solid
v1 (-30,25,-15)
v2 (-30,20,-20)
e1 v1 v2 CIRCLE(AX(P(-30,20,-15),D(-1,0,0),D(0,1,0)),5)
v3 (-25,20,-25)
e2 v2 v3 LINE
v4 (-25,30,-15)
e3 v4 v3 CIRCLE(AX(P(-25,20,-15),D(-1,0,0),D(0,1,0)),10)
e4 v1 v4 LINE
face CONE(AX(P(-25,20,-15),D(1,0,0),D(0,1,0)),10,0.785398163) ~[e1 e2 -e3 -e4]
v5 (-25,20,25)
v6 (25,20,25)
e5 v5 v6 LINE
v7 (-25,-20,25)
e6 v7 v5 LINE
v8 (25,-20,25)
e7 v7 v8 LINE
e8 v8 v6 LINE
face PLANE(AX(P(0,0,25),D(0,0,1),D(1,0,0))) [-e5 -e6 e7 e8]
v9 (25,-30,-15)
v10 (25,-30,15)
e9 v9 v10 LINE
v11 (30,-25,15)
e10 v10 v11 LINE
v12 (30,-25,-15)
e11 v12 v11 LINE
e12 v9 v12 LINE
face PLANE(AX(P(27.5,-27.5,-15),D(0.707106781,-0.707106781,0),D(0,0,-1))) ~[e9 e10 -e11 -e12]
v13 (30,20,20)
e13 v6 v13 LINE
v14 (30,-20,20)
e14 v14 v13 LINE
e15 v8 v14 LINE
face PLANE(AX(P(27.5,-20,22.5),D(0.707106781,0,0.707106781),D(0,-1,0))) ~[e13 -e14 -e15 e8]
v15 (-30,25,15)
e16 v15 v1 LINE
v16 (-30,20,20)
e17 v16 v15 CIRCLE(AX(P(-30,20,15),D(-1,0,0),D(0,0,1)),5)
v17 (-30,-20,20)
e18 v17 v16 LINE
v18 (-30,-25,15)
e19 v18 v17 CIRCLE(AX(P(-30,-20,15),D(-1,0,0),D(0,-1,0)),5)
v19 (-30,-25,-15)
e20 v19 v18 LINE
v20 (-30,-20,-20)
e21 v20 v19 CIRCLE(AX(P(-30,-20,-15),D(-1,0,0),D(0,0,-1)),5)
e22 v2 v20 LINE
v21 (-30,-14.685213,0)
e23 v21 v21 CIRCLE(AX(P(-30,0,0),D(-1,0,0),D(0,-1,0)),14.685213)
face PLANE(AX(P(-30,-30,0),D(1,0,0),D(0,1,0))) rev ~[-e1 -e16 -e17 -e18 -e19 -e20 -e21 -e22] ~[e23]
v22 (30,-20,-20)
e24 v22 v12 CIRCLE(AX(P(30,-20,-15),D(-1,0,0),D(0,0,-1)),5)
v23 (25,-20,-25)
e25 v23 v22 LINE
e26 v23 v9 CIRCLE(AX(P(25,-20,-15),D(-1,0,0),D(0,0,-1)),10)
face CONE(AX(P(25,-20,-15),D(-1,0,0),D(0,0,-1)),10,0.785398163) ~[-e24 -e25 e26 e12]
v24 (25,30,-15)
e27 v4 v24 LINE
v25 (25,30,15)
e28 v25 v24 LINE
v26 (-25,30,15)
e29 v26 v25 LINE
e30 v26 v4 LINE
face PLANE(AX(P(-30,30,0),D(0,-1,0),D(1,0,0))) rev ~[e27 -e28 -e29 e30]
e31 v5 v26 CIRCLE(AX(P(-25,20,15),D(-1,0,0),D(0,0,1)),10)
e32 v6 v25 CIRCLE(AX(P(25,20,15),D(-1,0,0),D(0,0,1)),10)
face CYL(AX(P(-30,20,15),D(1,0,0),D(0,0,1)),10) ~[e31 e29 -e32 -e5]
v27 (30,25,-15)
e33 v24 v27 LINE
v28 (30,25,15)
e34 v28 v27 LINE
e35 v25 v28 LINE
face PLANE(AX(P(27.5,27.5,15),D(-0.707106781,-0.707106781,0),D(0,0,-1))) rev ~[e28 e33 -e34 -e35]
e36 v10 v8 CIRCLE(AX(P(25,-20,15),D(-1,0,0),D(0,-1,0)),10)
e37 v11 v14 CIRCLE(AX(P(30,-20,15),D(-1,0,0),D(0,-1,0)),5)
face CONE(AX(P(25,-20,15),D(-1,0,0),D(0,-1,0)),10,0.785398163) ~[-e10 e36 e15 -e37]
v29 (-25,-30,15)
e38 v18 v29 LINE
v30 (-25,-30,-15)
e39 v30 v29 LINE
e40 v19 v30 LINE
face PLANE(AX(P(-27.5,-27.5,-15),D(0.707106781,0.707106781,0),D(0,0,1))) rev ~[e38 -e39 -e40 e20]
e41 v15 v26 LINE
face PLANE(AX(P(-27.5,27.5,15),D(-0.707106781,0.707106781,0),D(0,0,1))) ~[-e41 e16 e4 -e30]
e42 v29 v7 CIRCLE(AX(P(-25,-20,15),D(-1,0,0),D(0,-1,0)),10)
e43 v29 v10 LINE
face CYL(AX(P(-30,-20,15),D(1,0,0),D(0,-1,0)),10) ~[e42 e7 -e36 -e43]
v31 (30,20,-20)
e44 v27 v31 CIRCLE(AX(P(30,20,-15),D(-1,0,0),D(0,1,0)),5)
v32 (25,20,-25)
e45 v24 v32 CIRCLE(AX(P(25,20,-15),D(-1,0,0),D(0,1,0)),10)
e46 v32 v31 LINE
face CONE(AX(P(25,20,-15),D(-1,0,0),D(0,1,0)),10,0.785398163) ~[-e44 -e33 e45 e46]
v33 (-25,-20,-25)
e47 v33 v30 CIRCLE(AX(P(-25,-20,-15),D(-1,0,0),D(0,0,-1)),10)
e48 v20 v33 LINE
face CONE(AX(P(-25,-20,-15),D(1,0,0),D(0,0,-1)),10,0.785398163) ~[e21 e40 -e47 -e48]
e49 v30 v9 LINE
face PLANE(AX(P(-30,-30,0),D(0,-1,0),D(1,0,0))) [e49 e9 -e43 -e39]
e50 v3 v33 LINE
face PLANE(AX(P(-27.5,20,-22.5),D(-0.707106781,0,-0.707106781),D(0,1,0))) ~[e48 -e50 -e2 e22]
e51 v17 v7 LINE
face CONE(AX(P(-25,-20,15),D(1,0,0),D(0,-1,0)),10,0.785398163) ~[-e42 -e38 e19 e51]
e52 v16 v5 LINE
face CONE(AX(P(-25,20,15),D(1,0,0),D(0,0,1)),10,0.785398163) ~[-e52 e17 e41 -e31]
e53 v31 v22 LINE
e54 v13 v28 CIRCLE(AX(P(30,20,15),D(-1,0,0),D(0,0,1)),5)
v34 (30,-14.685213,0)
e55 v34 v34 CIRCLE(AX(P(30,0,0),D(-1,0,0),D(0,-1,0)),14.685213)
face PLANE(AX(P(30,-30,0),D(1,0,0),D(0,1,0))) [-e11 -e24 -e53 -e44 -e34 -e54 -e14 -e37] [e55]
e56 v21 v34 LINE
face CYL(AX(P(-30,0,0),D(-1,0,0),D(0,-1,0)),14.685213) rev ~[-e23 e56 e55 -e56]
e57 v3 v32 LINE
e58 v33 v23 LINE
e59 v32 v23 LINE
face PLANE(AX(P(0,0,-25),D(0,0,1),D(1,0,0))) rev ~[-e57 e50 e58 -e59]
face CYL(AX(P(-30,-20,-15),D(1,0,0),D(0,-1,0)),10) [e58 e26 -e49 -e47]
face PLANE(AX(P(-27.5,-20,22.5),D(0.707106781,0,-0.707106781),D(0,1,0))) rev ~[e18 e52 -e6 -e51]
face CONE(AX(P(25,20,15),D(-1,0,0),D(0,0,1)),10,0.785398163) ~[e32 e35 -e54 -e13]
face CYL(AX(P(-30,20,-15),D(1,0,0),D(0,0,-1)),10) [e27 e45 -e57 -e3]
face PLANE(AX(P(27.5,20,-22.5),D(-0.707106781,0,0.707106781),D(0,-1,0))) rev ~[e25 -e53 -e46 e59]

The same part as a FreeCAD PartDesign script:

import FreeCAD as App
import Part
import Sketcher
from FreeCAD import Vector
Q = App.Units.Quantity


def edges_at(feature, points):
    """Names of the edges that pass closest to the given points."""
    edges = feature.Shape.Edges
    near = lambda p: min(range(len(edges)), key=lambda i: edges[i].distToShape(Part.Vertex(*p))[0])
    return sorted({f"Edge{near(p) + 1}" for p in points})


def add_polygon(sketch, points):
    """Adds a closed chain of lines whose ends are joined by coincident constraints."""
    first, n = sketch.GeometryCount, len(points)
    for a, b in zip(points, points[1:] + points[:1]):
        sketch.addGeometry(Part.LineSegment(App.Vector(*a, 0), App.Vector(*b, 0)), False)
    for i in range(n):
        sketch.addConstraint(Sketcher.Constraint("Coincident", first + i, 2, first + (i + 1) % n, 1))

doc = App.newDocument("Part")
body = doc.addObject("PartDesign::Body", "Body")

# Sketch on XY plane
sketch1 = body.newObject("Sketcher::SketchObject", "Sketch")
sketch1.AttachmentSupport = (doc.getObject("XY_Plane"), [""])
sketch1.MapMode = "FlatFace"
add_polygon(sketch1, [(-30, 30), (-30, -30), (30, -30), (30, 30)])  # lines 0-3
sketch1.addConstraint(Sketcher.Constraint("Vertical", 0))
sketch1.addConstraint(Sketcher.Constraint("Horizontal", 1))
sketch1.addConstraint(Sketcher.Constraint("Vertical", 2))
sketch1.addConstraint(Sketcher.Constraint("Horizontal", 3))
sketch1.addConstraint(Sketcher.Constraint("Symmetric", 0, 2, 2, 2, -1, 1))
sketch1.addConstraint(Sketcher.Constraint("Equal", 3, 0))
sketch1.addConstraint(Sketcher.Constraint("DistanceX", 1, 1, 1, 2, Q("60 mm")))
pad1 = body.newObject("PartDesign::Pad", "Pad")
pad1.Profile = sketch1
pad1.Type = "TwoLengths"
pad1.Length = 25
pad1.Length2 = 25

# Sketch on YZ plane
sketch2 = body.newObject("Sketcher::SketchObject", "Sketch001")
sketch2.AttachmentSupport = (doc.getObject("YZ_Plane"), [""])
sketch2.MapMode = "FlatFace"
sketch2.AttachmentOffset = App.Placement(Vector(0, 0, -30), App.Rotation())
sketch2.addGeometry(Part.Circle(Vector(0, 0, 0), Vector(0, 0, 1), 14.685213), False)
sketch2.addConstraint(Sketcher.Constraint("Coincident", 0, 3, -1, 1))
sketch2.addConstraint(Sketcher.Constraint("Diameter", 0, Q("29.370426 mm")))
pocket1 = body.newObject("PartDesign::Pocket", "Pocket")
pocket1.Profile = sketch2
pocket1.Type = "ThroughAll"
pocket1.Reversed = True
doc.recompute()

fillet = body.newObject("PartDesign::Fillet", "Fillet")
fillet.Base = (pocket1, edges_at(pocket1, [
    (0, 30, -25),
    (0, 30, 25),
    (0, -30, 25),
    (0, -30, -25),
]))
fillet.Radius = 10
doc.recompute()

chamfer = body.newObject("PartDesign::Chamfer", "Chamfer")
chamfer.Base = (fillet, edges_at(fillet, [(30, 30, 0), (-30, 30, 0)]))
chamfer.ChamferType = "Two distances"
chamfer.Size = 5
chamfer.Size2 = 5

doc.recompute()
